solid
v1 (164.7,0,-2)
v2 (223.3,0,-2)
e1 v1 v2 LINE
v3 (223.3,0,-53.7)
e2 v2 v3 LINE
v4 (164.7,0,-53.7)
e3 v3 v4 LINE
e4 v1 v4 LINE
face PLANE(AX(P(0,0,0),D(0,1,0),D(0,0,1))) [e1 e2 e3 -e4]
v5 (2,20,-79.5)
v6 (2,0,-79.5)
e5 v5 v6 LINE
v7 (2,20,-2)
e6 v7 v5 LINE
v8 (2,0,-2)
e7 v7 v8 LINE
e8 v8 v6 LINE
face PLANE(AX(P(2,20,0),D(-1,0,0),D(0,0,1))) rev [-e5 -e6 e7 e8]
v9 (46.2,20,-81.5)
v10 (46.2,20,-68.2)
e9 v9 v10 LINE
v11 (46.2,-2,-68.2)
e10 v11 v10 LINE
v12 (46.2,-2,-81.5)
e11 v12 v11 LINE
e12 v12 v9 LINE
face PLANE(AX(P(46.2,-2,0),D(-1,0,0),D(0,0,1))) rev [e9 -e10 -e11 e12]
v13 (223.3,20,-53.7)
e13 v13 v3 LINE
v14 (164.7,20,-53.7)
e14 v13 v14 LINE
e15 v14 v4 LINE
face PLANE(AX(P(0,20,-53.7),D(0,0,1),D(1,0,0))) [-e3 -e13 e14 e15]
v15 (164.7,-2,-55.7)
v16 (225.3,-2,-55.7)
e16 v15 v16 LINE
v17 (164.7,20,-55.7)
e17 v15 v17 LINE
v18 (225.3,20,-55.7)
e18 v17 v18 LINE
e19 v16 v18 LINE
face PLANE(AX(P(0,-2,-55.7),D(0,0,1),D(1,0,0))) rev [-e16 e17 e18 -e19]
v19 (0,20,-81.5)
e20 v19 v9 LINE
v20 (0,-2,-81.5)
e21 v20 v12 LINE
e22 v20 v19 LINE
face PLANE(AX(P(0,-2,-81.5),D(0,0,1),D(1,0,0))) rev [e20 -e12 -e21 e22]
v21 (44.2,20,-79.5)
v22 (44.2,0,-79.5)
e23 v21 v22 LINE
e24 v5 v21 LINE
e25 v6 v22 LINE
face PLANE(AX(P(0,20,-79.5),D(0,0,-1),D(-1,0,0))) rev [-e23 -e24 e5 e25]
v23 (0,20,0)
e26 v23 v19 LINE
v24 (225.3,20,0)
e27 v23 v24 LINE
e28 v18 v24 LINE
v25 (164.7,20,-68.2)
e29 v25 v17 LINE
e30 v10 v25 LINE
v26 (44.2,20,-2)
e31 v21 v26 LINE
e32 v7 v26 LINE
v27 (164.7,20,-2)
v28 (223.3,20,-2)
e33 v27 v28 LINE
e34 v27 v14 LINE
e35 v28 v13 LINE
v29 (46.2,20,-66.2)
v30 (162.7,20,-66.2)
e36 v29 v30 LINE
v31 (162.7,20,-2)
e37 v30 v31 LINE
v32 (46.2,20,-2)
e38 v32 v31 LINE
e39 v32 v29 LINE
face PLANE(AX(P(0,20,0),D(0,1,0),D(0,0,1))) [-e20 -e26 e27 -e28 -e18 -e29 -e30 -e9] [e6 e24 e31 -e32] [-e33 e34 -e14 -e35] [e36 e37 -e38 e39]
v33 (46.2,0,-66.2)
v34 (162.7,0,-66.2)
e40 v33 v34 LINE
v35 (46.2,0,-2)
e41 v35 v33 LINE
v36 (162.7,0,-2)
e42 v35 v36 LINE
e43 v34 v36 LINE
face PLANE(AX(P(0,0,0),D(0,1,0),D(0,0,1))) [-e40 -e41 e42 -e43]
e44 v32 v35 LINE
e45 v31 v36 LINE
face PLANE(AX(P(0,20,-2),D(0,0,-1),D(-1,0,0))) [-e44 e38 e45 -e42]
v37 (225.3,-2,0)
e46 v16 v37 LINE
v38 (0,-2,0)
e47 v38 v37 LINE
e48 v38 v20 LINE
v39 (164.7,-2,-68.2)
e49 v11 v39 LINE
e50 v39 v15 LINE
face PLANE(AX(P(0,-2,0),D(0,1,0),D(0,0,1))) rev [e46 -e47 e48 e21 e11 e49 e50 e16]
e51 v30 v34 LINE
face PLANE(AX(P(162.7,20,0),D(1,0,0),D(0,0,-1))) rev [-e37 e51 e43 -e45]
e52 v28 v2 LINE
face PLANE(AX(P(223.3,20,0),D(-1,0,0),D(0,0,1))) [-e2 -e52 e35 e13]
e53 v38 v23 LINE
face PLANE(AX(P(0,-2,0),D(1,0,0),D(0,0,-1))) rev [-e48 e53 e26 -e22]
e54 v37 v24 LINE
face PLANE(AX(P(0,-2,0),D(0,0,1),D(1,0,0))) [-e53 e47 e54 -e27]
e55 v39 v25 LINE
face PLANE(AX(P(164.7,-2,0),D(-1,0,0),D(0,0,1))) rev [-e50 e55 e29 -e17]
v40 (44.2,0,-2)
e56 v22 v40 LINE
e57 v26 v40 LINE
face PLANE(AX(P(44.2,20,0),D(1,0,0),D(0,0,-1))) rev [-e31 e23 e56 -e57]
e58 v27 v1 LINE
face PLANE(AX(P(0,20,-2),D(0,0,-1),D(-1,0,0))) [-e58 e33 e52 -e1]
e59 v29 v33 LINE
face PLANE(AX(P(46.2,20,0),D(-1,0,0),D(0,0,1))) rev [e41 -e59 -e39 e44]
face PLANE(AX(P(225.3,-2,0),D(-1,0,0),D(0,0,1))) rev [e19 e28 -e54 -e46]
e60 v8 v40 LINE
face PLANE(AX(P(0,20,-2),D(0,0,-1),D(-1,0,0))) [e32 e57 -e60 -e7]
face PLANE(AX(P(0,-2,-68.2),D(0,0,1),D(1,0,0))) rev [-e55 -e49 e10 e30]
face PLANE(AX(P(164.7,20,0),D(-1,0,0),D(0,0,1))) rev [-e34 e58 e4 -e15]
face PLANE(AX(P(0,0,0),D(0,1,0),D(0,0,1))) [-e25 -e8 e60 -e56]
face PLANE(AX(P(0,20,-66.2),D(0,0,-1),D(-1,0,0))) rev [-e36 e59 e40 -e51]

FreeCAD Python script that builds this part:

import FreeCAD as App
import Part
import Sketcher

V = App.Vector


def add_polygon(sketch, points):
    """Adds a closed chain of lines whose ends are joined by coincident constraints."""
    first, n = sketch.GeometryCount, len(points)
    for a, b in zip(points, points[1:] + points[:1]):
        sketch.addGeometry(Part.LineSegment(App.Vector(*a, 0), App.Vector(*b, 0)), False)
    for i in range(n):
        sketch.addConstraint(Sketcher.Constraint("Coincident", first + i, 2, first + (i + 1) % n, 1))

doc = App.newDocument("Part")
body = doc.addObject("PartDesign::Body", "Body")

# Sketch on XZ plane
sketch1 = body.newObject("Sketcher::SketchObject", "Sketch")
sketch1.AttachmentSupport = (doc.getObject("XZ_Plane"), [""])
sketch1.MapMode = "FlatFace"
add_polygon(sketch1, [(0, 0), (225, 0), (225, -56), (165, -56), (165, -68), (46, -68), (46, -82), (0, -82)])  # lines 0-7
sketch1.addConstraint(Sketcher.Constraint("Horizontal", 0))
sketch1.addConstraint(Sketcher.Constraint("Vertical", 1))
sketch1.addConstraint(Sketcher.Constraint("Horizontal", 2))
sketch1.addConstraint(Sketcher.Constraint("Vertical", 3))
sketch1.addConstraint(Sketcher.Constraint("Horizontal", 4))
sketch1.addConstraint(Sketcher.Constraint("Vertical", 5))
sketch1.addConstraint(Sketcher.Constraint("Horizontal", 6))
sketch1.addConstraint(Sketcher.Constraint("Vertical", 7))
sketch1.addConstraint(Sketcher.Constraint("Coincident", 7, 2, -1, 1))
sketch1.addConstraint(Sketcher.Constraint("DistanceX", 0, 1, 0, 2, 225.3))
sketch1.addConstraint(Sketcher.Constraint("DistanceX", 2, 2, 2, 1, 60.6))
sketch1.addConstraint(Sketcher.Constraint("DistanceX", 4, 2, 4, 1, 118.5))
sketch1.addConstraint(Sketcher.Constraint("DistanceY", 1, 2, 1, 1, 55.7))
sketch1.addConstraint(Sketcher.Constraint("DistanceY", 3, 2, 3, 1, 12.5))
sketch1.addConstraint(Sketcher.Constraint("DistanceY", 5, 2, 5, 1, 13.3))
pad1 = body.newObject("PartDesign::Pad", "Pad")
pad1.Profile = sketch1
pad1.Length = 2

# Sketch on XZ plane
sketch2 = body.newObject("Sketcher::SketchObject", "Sketch001")
sketch2.AttachmentSupport = (doc.getObject("XZ_Plane"), [""])
sketch2.MapMode = "FlatFace"
add_polygon(sketch2, [(0, 0), (225, 0), (225, -56), (165, -56), (165, -68), (46, -68), (46, -82), (0, -82)])  # lines 0-7
add_polygon(sketch2, [(163, -66), (163, -2), (46, -2), (46, -66)])  # lines 8-11
add_polygon(sketch2, [(223, -2), (165, -2), (165, -54), (223, -54)])  # lines 12-15
add_polygon(sketch2, [(44, -2), (2, -2), (2, -80), (44, -80)])  # lines 16-19
sketch2.addConstraint(Sketcher.Constraint("Horizontal", 0))
sketch2.addConstraint(Sketcher.Constraint("Vertical", 1))
sketch2.addConstraint(Sketcher.Constraint("Horizontal", 2))
sketch2.addConstraint(Sketcher.Constraint("Vertical", 3))
sketch2.addConstraint(Sketcher.Constraint("Horizontal", 4))
sketch2.addConstraint(Sketcher.Constraint("Vertical", 5))
sketch2.addConstraint(Sketcher.Constraint("Horizontal", 6))
sketch2.addConstraint(Sketcher.Constraint("Vertical", 7))
sketch2.addConstraint(Sketcher.Constraint("Vertical", 8))
sketch2.addConstraint(Sketcher.Constraint("Horizontal", 9))
sketch2.addConstraint(Sketcher.Constraint("Vertical", 10))
sketch2.addConstraint(Sketcher.Constraint("Horizontal", 11))
sketch2.addConstraint(Sketcher.Constraint("Horizontal", 12))
sketch2.addConstraint(Sketcher.Constraint("Vertical", 13))
sketch2.addConstraint(Sketcher.Constraint("Horizontal", 14))
sketch2.addConstraint(Sketcher.Constraint("Vertical", 15))
sketch2.addConstraint(Sketcher.Constraint("Horizontal", 16))
sketch2.addConstraint(Sketcher.Constraint("Vertical", 17))
sketch2.addConstraint(Sketcher.Constraint("Horizontal", 18))
sketch2.addConstraint(Sketcher.Constraint("Vertical", 19))
sketch2.addConstraint(Sketcher.Constraint("Coincident", 7, 2, -1, 1))
sketch2.addConstraint(Sketcher.Constraint("Horizontal", 9, 2, 12, 2))
sketch2.addConstraint(Sketcher.Constraint("Horizontal", 15, 2, 16, 2))
sketch2.addConstraint(Sketcher.Constraint("Vertical", 5, 2, 9, 2))
sketch2.addConstraint(Sketcher.Constraint("Vertical", 3, 2, 12, 2))
sketch2.addConstraint(Sketcher.Constraint("DistanceX", 0, 1, 0, 2, 225.3))
sketch2.addConstraint(Sketcher.Constraint("DistanceX", 2, 2, 2, 1, 60.6))
sketch2.addConstraint(Sketcher.Constraint("DistanceX", 4, 2, 4, 1, 118.5))
sketch2.addConstraint(Sketcher.Constraint("DistanceX", 9, 2, 9, 1, 116.5))
sketch2.addConstraint(Sketcher.Constraint("DistanceX", 12, 2, 12, 1, 58.6))
sketch2.addConstraint(Sketcher.Constraint("DistanceX", 16, 2, 16, 1, 42.2))
sketch2.addConstraint(Sketcher.Constraint("DistanceY", 1, 2, 1, 1, 55.7))
sketch2.addConstraint(Sketcher.Constraint("DistanceY", 3, 2, 3, 1, 12.5))
sketch2.addConstraint(Sketcher.Constraint("DistanceY", 5, 2, 5, 1, 13.3))
sketch2.addConstraint(Sketcher.Constraint("DistanceY", 8, 1, 8, 2, 64.2))
sketch2.addConstraint(Sketcher.Constraint("DistanceY", 13, 2, 13, 1, 51.7))
sketch2.addConstraint(Sketcher.Constraint("DistanceY", 17, 2, 17, 1, 77.5))
sketch2.addConstraint(Sketcher.Constraint("DistanceY", 8, 2, -1, 1, 2.0))
sketch2.addConstraint(Sketcher.Constraint("DistanceX", -1, 1, 16, 2, 2.0))
pad2 = body.newObject("PartDesign::Pad", "Pad001")
pad2.Profile = sketch2
pad2.Length = 20
pad2.Reversed = True

doc.recompute()
